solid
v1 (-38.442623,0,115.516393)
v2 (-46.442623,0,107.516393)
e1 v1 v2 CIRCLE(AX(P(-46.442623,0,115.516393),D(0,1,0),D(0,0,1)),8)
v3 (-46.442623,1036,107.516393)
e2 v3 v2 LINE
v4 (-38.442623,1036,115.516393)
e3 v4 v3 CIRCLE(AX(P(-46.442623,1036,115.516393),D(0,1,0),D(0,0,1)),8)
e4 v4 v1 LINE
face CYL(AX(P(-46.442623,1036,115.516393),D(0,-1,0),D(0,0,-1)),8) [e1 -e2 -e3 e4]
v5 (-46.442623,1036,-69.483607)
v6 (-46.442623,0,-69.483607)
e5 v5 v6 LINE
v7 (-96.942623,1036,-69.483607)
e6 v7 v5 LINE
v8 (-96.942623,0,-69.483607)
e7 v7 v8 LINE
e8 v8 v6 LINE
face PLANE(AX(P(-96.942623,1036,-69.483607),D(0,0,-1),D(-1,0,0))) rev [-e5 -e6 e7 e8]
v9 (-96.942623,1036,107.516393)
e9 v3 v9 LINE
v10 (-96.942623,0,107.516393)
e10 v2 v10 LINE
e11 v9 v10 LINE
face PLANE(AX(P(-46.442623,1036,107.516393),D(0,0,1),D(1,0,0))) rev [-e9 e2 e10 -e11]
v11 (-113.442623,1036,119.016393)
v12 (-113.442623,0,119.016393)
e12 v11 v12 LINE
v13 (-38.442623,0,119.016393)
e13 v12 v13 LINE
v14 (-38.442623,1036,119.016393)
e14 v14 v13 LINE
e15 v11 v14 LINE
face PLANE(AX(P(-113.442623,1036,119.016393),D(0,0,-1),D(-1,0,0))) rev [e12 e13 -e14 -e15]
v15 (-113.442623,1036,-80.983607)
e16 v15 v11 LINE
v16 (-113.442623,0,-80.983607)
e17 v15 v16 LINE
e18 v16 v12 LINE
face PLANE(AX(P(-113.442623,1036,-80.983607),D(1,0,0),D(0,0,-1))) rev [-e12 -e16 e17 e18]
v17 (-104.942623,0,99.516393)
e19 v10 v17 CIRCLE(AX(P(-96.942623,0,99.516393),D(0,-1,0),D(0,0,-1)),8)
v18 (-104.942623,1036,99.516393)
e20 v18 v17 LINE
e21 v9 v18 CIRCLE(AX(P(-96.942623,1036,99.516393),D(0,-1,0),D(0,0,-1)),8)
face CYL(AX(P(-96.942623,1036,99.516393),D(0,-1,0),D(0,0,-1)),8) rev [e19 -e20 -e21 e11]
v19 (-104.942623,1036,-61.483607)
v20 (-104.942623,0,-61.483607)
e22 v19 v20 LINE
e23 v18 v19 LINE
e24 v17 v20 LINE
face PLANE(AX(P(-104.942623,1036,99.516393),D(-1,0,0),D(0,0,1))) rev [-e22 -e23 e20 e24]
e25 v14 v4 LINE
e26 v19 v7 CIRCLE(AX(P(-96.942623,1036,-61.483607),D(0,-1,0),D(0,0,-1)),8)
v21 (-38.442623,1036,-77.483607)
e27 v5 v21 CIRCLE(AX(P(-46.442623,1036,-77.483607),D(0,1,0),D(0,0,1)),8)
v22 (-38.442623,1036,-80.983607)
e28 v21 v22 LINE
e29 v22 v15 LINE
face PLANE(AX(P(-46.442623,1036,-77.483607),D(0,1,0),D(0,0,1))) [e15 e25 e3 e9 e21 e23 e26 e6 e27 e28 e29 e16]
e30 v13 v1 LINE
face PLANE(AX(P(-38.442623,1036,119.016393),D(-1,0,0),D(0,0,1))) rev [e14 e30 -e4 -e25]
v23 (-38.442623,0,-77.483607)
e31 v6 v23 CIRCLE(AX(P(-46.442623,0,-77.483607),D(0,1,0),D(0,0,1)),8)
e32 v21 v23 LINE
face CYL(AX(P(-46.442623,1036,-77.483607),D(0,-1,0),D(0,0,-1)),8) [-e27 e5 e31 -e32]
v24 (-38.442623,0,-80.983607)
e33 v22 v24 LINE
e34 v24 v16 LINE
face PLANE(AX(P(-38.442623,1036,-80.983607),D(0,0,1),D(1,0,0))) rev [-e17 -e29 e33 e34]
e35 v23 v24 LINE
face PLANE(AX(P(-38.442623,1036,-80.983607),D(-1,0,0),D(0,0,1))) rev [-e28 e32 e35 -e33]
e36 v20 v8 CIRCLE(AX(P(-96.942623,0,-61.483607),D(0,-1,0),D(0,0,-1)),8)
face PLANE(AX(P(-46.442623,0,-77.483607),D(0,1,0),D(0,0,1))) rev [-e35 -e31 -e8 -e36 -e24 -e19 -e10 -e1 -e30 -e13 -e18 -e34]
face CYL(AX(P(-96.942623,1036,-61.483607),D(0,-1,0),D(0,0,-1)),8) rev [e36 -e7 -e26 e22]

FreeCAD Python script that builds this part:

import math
import FreeCAD as App
import Part
import Sketcher

doc = App.newDocument("Part")
body = doc.addObject("PartDesign::Body", "Body")

# Sketch on XZ plane
sketch1 = body.newObject("Sketcher::SketchObject", "Sketch")
sketch1.AttachmentSupport = (doc.getObject("XZ_Plane"), [""])
sketch1.MapMode = "FlatFace"
sketch1.addGeometry(Part.LineSegment(App.Vector(-38.4, -81, 0), App.Vector(-113.4, -81, 0)), False)
sketch1.addGeometry(Part.LineSegment(App.Vector(-113.4, -81, 0), App.Vector(-113.4, 119, 0)), False)
sketch1.addGeometry(Part.LineSegment(App.Vector(-113.4, 119, 0), App.Vector(-38.4, 119, 0)), False)
sketch1.addGeometry(Part.LineSegment(App.Vector(-38.4, 119, 0), App.Vector(-38.4, 115.5, 0)), False)
sketch1.addGeometry(Part.ArcOfCircle(Part.Circle(App.Vector(-46.4, 115.5, 0), App.Vector(0, 0, 1), 8), math.radians(-90), math.radians(0)), False)
sketch1.addGeometry(Part.LineSegment(App.Vector(-46.4, 107.5, 0), App.Vector(-96.9, 107.5, 0)), False)
sketch1.addGeometry(Part.ArcOfCircle(Part.Circle(App.Vector(-96.9, 99.5, 0), App.Vector(0, 0, 1), 8), math.radians(90), math.radians(180)), False)
sketch1.addGeometry(Part.LineSegment(App.Vector(-104.9, 99.5, 0), App.Vector(-104.9, -61.5, 0)), False)
sketch1.addGeometry(Part.ArcOfCircle(Part.Circle(App.Vector(-96.9, -61.5, 0), App.Vector(0, 0, 1), 8), math.radians(180), math.radians(270)), False)
sketch1.addGeometry(Part.LineSegment(App.Vector(-96.9, -69.5, 0), App.Vector(-46.4, -69.5, 0)), False)
sketch1.addGeometry(Part.ArcOfCircle(Part.Circle(App.Vector(-46.4, -77.5, 0), App.Vector(0, 0, 1), 8), math.radians(0), math.radians(90)), False)
sketch1.addGeometry(Part.LineSegment(App.Vector(-38.4, -77.5, 0), App.Vector(-38.4, -81, 0)), False)
sketch1.addConstraint(Sketcher.Constraint("Coincident", 0, 2, 1, 1))
sketch1.addConstraint(Sketcher.Constraint("Coincident", 1, 2, 2, 1))
sketch1.addConstraint(Sketcher.Constraint("Coincident", 2, 2, 3, 1))
sketch1.addConstraint(Sketcher.Constraint("Tangent", 3, 2, 4, 2))
sketch1.addConstraint(Sketcher.Constraint("Tangent", 4, 1, 5, 1))
sketch1.addConstraint(Sketcher.Constraint("Tangent", 5, 2, 6, 1))
sketch1.addConstraint(Sketcher.Constraint("Tangent", 6, 2, 7, 1))
sketch1.addConstraint(Sketcher.Constraint("Tangent", 7, 2, 8, 1))
sketch1.addConstraint(Sketcher.Constraint("Tangent", 8, 2, 9, 1))
sketch1.addConstraint(Sketcher.Constraint("Tangent", 9, 2, 10, 2))
sketch1.addConstraint(Sketcher.Constraint("Tangent", 10, 1, 11, 1))
sketch1.addConstraint(Sketcher.Constraint("Coincident", 11, 2, 0, 1))
sketch1.addConstraint(Sketcher.Constraint("Horizontal", 0))
sketch1.addConstraint(Sketcher.Constraint("Vertical", 1))
sketch1.addConstraint(Sketcher.Constraint("Horizontal", 2))
sketch1.addConstraint(Sketcher.Constraint("Vertical", 3))
sketch1.addConstraint(Sketcher.Constraint("Horizontal", 5))
sketch1.addConstraint(Sketcher.Constraint("Vertical", 7))
sketch1.addConstraint(Sketcher.Constraint("Horizontal", 9))
sketch1.addConstraint(Sketcher.Constraint("Vertical", 11))
sketch1.addConstraint(Sketcher.Constraint("Equal", 4, 6))
sketch1.addConstraint(Sketcher.Constraint("Equal", 6, 8))
sketch1.addConstraint(Sketcher.Constraint("Equal", 8, 10))
sketch1.addConstraint(Sketcher.Constraint("Vertical", 4, 3, 10, 3))
sketch1.addConstraint(Sketcher.Constraint("Equal", 3, 11))
sketch1.addConstraint(Sketcher.Constraint("Radius", 4, 8.0))
sketch1.addConstraint(Sketcher.Constraint("DistanceX", 0, 2, 0, 1, 75.0))
sketch1.addConstraint(Sketcher.Constraint("DistanceY", 1, 1, 1, 2, 200.0))
sketch1.addConstraint(Sketcher.Constraint("DistanceY", 7, 2, 7, 1, 161.0))
sketch1.addConstraint(Sketcher.Constraint("DistanceX", 5, 2, 5, 1, 50.5))
sketch1.addConstraint(Sketcher.Constraint("DistanceX", 4, 3, -1, 1, 46.442623))
sketch1.addConstraint(Sketcher.Constraint("DistanceY", -1, 1, 4, 3, 115.516393))
pad1 = body.newObject("PartDesign::Pad", "Pad")
pad1.Profile = sketch1
pad1.Length = 1036
pad1.Reversed = True

doc.recompute()
